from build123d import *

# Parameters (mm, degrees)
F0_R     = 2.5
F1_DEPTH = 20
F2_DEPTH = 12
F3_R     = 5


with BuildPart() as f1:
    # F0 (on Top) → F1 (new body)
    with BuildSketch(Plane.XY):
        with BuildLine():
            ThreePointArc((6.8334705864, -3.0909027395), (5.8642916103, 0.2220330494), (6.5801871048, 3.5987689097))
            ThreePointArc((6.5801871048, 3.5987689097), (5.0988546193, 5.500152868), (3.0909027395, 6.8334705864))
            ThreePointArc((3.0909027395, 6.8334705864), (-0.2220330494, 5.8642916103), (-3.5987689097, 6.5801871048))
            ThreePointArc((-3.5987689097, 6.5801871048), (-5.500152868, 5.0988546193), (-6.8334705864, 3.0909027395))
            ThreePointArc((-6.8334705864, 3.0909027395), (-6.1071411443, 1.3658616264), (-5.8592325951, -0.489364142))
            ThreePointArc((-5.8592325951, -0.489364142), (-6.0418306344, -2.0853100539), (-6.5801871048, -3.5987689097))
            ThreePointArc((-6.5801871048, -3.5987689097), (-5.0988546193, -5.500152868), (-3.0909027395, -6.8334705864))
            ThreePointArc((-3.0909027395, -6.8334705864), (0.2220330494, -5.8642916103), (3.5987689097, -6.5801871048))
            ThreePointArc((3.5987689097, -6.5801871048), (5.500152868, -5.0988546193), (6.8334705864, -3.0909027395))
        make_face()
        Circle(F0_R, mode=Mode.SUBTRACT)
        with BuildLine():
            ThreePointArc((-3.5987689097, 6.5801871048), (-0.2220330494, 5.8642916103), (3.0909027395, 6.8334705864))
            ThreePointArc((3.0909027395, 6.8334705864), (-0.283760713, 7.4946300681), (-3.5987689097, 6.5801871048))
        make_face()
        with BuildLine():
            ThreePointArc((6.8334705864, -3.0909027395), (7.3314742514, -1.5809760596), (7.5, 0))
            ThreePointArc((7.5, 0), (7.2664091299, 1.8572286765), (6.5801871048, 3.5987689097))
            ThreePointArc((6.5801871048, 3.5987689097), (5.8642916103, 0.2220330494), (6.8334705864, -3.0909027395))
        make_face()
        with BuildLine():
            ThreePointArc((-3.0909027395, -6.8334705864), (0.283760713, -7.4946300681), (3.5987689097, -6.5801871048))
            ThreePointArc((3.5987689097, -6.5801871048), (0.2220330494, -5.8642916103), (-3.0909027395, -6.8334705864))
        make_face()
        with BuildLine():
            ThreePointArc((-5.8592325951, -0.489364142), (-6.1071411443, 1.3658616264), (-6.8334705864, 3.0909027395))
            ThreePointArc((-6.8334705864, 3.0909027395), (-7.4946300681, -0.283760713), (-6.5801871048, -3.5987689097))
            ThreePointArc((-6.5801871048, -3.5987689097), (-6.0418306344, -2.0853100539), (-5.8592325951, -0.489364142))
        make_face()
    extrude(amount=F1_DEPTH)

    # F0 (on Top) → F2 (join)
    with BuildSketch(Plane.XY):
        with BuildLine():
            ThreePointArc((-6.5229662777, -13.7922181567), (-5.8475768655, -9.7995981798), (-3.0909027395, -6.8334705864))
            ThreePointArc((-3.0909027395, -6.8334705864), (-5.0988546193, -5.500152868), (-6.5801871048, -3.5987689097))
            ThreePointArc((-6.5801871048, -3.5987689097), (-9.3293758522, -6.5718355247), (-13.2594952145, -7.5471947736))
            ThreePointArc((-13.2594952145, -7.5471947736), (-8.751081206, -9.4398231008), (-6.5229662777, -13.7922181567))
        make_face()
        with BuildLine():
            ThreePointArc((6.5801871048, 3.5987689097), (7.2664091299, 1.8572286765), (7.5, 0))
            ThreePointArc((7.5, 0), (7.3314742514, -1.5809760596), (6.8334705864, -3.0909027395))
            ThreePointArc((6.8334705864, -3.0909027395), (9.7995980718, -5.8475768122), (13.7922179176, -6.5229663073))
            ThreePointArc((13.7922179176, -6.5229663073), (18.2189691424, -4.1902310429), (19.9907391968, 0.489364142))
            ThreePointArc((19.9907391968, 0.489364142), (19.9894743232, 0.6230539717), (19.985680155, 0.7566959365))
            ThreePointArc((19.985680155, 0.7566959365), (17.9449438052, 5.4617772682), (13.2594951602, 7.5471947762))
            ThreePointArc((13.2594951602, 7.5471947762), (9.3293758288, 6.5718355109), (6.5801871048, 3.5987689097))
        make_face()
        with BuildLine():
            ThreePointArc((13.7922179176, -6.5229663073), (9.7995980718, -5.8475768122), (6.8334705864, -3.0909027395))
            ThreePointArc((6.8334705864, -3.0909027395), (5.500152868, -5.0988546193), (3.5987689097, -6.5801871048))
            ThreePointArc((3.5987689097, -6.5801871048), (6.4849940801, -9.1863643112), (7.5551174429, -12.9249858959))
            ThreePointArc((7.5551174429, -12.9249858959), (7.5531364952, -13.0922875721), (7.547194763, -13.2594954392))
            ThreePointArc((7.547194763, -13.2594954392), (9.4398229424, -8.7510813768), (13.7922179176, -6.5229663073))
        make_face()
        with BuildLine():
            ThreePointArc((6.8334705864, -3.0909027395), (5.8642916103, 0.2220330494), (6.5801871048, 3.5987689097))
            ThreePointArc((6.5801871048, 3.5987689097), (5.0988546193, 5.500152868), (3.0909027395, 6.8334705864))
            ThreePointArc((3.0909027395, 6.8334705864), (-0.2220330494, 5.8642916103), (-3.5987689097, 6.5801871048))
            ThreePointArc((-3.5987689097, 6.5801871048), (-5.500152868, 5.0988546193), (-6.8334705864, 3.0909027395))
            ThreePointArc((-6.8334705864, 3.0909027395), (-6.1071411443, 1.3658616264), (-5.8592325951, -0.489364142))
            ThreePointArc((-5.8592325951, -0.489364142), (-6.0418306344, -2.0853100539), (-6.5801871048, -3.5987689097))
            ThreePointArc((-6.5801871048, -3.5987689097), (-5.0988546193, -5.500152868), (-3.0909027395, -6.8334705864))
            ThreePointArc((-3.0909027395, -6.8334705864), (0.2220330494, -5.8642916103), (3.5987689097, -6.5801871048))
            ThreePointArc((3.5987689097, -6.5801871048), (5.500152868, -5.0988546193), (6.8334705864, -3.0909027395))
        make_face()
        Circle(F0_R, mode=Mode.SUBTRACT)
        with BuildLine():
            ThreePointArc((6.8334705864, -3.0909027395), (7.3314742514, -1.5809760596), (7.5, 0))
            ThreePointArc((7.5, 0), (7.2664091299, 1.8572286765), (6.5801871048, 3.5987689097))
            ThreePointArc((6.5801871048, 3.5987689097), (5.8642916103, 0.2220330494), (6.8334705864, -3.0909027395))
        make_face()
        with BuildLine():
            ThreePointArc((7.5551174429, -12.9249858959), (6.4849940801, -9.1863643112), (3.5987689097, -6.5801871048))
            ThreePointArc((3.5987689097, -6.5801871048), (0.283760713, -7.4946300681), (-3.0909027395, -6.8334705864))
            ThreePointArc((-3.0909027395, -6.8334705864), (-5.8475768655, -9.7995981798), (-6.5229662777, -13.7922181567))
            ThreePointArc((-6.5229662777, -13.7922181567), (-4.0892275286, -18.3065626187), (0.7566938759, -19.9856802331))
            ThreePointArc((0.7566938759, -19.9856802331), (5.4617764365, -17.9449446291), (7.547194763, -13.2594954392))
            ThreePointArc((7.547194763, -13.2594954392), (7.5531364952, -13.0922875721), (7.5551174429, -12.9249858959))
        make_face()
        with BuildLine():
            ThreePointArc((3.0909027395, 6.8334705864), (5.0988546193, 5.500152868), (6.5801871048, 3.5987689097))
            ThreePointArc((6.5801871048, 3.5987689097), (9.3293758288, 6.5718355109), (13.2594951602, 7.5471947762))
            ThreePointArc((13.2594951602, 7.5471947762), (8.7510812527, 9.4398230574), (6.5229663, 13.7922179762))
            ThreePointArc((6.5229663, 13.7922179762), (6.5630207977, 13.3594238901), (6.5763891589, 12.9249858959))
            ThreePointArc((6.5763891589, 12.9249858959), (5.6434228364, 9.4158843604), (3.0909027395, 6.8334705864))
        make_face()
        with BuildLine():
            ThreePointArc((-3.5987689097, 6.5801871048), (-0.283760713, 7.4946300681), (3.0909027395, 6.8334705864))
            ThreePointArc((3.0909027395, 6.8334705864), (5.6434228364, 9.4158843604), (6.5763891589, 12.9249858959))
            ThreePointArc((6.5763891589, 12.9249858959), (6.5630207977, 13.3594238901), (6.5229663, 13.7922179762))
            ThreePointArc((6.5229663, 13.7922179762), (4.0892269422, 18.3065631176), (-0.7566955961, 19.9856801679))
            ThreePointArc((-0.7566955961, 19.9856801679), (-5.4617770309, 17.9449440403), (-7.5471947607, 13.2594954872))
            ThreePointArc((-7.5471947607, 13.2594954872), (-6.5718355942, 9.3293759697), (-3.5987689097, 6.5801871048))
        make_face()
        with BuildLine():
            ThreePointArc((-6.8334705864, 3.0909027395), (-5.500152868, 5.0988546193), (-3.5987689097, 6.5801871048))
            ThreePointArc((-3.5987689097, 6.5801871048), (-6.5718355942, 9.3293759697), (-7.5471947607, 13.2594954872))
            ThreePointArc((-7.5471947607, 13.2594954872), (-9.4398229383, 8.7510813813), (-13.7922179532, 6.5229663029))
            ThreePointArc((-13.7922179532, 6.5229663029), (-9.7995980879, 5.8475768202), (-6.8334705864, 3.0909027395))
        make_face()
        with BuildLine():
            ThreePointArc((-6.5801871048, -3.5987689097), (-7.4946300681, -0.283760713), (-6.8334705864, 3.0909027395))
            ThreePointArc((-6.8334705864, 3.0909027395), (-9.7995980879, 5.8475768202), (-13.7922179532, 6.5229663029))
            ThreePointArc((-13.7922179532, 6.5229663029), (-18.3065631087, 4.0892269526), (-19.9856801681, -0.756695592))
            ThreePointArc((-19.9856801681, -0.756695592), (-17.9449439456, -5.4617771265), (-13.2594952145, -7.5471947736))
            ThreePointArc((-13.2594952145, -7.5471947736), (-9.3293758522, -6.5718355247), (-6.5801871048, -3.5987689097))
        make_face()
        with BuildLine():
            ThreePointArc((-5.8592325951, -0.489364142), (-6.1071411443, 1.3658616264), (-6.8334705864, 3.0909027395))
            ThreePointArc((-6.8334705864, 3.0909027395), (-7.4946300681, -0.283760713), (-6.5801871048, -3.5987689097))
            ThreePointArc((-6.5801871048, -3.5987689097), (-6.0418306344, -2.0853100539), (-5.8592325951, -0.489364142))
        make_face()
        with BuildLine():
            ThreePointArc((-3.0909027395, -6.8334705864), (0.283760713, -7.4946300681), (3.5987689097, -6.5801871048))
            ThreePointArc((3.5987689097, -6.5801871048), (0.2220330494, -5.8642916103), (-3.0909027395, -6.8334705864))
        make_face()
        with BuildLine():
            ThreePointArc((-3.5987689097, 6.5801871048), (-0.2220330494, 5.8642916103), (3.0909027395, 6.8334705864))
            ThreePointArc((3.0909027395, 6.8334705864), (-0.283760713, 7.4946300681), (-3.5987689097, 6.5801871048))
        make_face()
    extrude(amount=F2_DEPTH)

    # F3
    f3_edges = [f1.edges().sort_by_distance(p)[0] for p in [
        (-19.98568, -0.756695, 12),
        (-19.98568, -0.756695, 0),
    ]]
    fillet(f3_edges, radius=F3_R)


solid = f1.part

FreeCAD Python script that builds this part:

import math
import FreeCAD as App
import Part
import Sketcher


def edges_at(feature, points):
    """Names of the edges that pass closest to the given points."""
    edges = feature.Shape.Edges
    near = lambda p: min(range(len(edges)), key=lambda i: edges[i].distToShape(Part.Vertex(*p))[0])
    return sorted({f"Edge{near(p) + 1}" for p in points})

doc = App.newDocument("Part")
body = doc.addObject("PartDesign::Body", "Body")

# Sketch on XY plane
sketch1 = doc.addObject("Sketcher::SketchObject", "Sketch")
body.addObject(sketch1)
sketch1.AttachmentSupport = (doc.XY_Plane, [""])
sketch1.MapMode = "FlatFace"
sketch1.addGeometry([
    Part.ArcOfCircle(Part.Circle(App.Vector(0, 0, 0), App.Vector(0, 0, 1), 7.5), math.radians(28.674682), math.radians(65.661897)),  # 0
    Part.ArcOfCircle(Part.Circle(App.Vector(0, 0, 0), App.Vector(0, 0, 1), 7.5), math.radians(65.661897), math.radians(118.674682)),  # 1
    Part.ArcOfCircle(Part.Circle(App.Vector(0, 0, 0), App.Vector(0, 0, 1), 7.5), math.radians(118.674682), math.radians(155.661897)),  # 2
    Part.ArcOfCircle(Part.Circle(App.Vector(0, 0, 0), App.Vector(0, 0, 1), 7.5), math.radians(155.661897), math.radians(208.674682)),  # 3
    Part.ArcOfCircle(Part.Circle(App.Vector(0, 0, 0), App.Vector(0, 0, 1), 7.5), math.radians(-151.325318), math.radians(-114.338103)),  # 4
    Part.ArcOfCircle(Part.Circle(App.Vector(0, 0, 0), App.Vector(0, 0, 1), 7.5), math.radians(-114.338103), math.radians(-61.325318)),  # 5
    Part.ArcOfCircle(Part.Circle(App.Vector(0, 0, 0), App.Vector(0, 0, 1), 7.5), math.radians(-61.325318), math.radians(-24.338103)),  # 6
    Part.ArcOfCircle(Part.Circle(App.Vector(0, 0, 0), App.Vector(0, 0, 1), 7.5), math.radians(-24.338103), math.radians(0)),  # 7
    Part.ArcOfCircle(Part.Circle(App.Vector(0, 0, 0), App.Vector(0, 0, 1), 7.5), math.radians(0), math.radians(28.674682)),  # 8
    Part.Circle(App.Vector(0, 0, 0), App.Vector(0, 0, 1), 2.5),  # 9
], False)
sketch1.addConstraint([
    Sketcher.Constraint("Tangent", 0, 2, 1, 1),
    Sketcher.Constraint("Tangent", 1, 2, 2, 1),
    Sketcher.Constraint("Tangent", 2, 2, 3, 1),
    Sketcher.Constraint("Tangent", 3, 2, 4, 1),
    Sketcher.Constraint("Tangent", 4, 2, 5, 1),
    Sketcher.Constraint("Tangent", 5, 2, 6, 1),
    Sketcher.Constraint("Tangent", 6, 2, 7, 1),
    Sketcher.Constraint("Tangent", 7, 2, 8, 1),
    Sketcher.Constraint("Tangent", 8, 2, 0, 1),
    Sketcher.Constraint("Coincident", 0, 3, -1, 1),
    Sketcher.Constraint("Coincident", 2, 3, -1, 1),
    Sketcher.Constraint("Coincident", 4, 3, -1, 1),
    Sketcher.Constraint("Coincident", 6, 3, -1, 1),
    Sketcher.Constraint("Coincident", 9, 3, -1, 1),
    Sketcher.Constraint("PointOnObject", 7, 2, -1),
    Sketcher.Constraint("Diameter", 9, 5.0),
    Sketcher.Constraint("Radius", 0, 7.5),
    Sketcher.Constraint("DistanceX", 2, 2, 1, 2, 3.234702),
    Sketcher.Constraint("DistanceY", 4, 2, 3, 2, 3.234702),
    Sketcher.Constraint("DistanceX", 5, 2, 6, 2, 3.234702),
    Sketcher.Constraint("DistanceY", 8, 2, 0, 2, 3.234702),
    Sketcher.Constraint("DistanceY", -1, 1, 0, 2, 6.833471),
    Sketcher.Constraint("DistanceX", 1, 2, -1, 1, 3.598769),
    Sketcher.Constraint("DistanceY", 3, 2, -1, 1, 3.598769),
    Sketcher.Constraint("DistanceX", -1, 1, 5, 2, 3.598769),
])
pad1 = doc.addObject("PartDesign::Pad", "Pad")
body.addObject(pad1)
pad1.Profile = sketch1
pad1.Length = 20

# Sketch on XY plane
sketch2 = doc.addObject("Sketcher::SketchObject", "Sketch001")
body.addObject(sketch2)
sketch2.AttachmentSupport = (doc.XY_Plane, [""])
sketch2.MapMode = "FlatFace"
sketch2.addGeometry([
    Part.ArcOfCircle(Part.Circle(App.Vector(-0.489364, 12.924986, 0), App.Vector(0, 0, 1), 7.065753), math.radians(92.168293), math.radians(177.286467)),  # 0
    Part.ArcOfCircle(Part.Circle(App.Vector(-14.667074, 13.596946, 0), App.Vector(0, 0, 1), 7.127872), math.radians(-82.949889), math.radians(-2.713531)),  # 1
    Part.ArcOfCircle(Part.Circle(App.Vector(-12.924986, -0.489364, 0), App.Vector(0, 0, 1), 7.065753), math.radians(97.050111), math.radians(182.168293)),  # 2
    Part.ArcOfCircle(Part.Circle(App.Vector(-12.924986, -0.489364, 0), App.Vector(0, 0, 1), 7.065753), math.radians(-177.831707), math.radians(-92.713531)),  # 3
    Part.ArcOfCircle(Part.Circle(App.Vector(-13.596946, -14.667074, 0), App.Vector(0, 0, 1), 7.127872), math.radians(7.05011), math.radians(87.286467)),  # 4
    Part.ArcOfCircle(Part.Circle(App.Vector(0.489364, -12.924986, 0), App.Vector(0, 0, 1), 7.065753), math.radians(-172.949887), math.radians(-87.831721)),  # 5
    Part.ArcOfCircle(Part.Circle(App.Vector(0.489364, -12.924986, 0), App.Vector(0, 0, 1), 7.065753), math.radians(-87.831721), math.radians(-2.713533)),  # 6
    Part.ArcOfCircle(Part.Circle(App.Vector(14.667074, -13.596946, 0), App.Vector(0, 0, 1), 7.127872), math.radians(97.050112), math.radians(177.286469)),  # 7
    Part.ArcOfCircle(Part.Circle(App.Vector(12.924986, 0.489364, 0), App.Vector(0, 0, 1), 7.065753), math.radians(-82.949889), math.radians(0)),  # 8
    Part.ArcOfCircle(Part.Circle(App.Vector(12.924986, 0.489364, 0), App.Vector(0, 0, 1), 7.065753), math.radians(0), math.radians(2.168295)),  # 9
    Part.ArcOfCircle(Part.Circle(App.Vector(12.924986, 0.489364, 0), App.Vector(0, 0, 1), 7.065753), math.radians(2.168295), math.radians(87.28647)),  # 10
    Part.ArcOfCircle(Part.Circle(App.Vector(13.596946, 14.667074, 0), App.Vector(0, 0, 1), 7.127872), math.radians(-172.949889), math.radians(-92.713533)),  # 11
    Part.ArcOfCircle(Part.Circle(App.Vector(-0.489364, 12.924986, 0), App.Vector(0, 0, 1), 7.065753), math.radians(7.050111), math.radians(92.168293)),  # 12
    Part.Circle(App.Vector(0, 0, 0), App.Vector(0, 0, 1), 2.5),  # 13
], False)
sketch2.addConstraint([
    Sketcher.Constraint("Tangent", 0, 2, 1, 2),
    Sketcher.Constraint("Tangent", 1, 1, 2, 1),
    Sketcher.Constraint("Tangent", 2, 2, 3, 1),
    Sketcher.Constraint("Tangent", 3, 2, 4, 2),
    Sketcher.Constraint("Tangent", 4, 1, 5, 1),
    Sketcher.Constraint("Tangent", 5, 2, 6, 1),
    Sketcher.Constraint("Tangent", 6, 2, 7, 2),
    Sketcher.Constraint("Tangent", 7, 1, 8, 1),
    Sketcher.Constraint("Tangent", 8, 2, 9, 1),
    Sketcher.Constraint("Tangent", 9, 2, 10, 1),
    Sketcher.Constraint("Tangent", 10, 2, 11, 2),
    Sketcher.Constraint("Tangent", 11, 1, 12, 1),
    Sketcher.Constraint("Tangent", 12, 2, 0, 1),
    Sketcher.Constraint("Coincident", 13, 3, -1, 1),
    Sketcher.Constraint("Coincident", 10, 3, 8, 3),
    Sketcher.Constraint("Equal", 0, 2),
    Sketcher.Constraint("Equal", 2, 3),
    Sketcher.Constraint("Equal", 1, 4),
    Sketcher.Constraint("Equal", 3, 5),
    Sketcher.Constraint("Equal", 5, 6),
    Sketcher.Constraint("Equal", 4, 7),
    Sketcher.Constraint("Equal", 6, 8),
    Sketcher.Constraint("Equal", 7, 11),
    Sketcher.Constraint("Equal", 10, 12),
    Sketcher.Constraint("Symmetric", 0, 3, 5, 3, -1, 1),
    Sketcher.Constraint("Symmetric", 2, 3, 8, 3, -1, 1),
    Sketcher.Constraint("Horizontal", 10, 3, 8, 2),
    Sketcher.Constraint("Diameter", 13, 5.0),
    Sketcher.Constraint("Radius", 1, 7.127872),
    Sketcher.Constraint("Radius", 0, 7.065753),
    Sketcher.Constraint("DistanceY", 3, 2, 2, 2, 6.790499),
    Sketcher.Constraint("DistanceX", 5, 2, 6, 2, 6.790501),
    Sketcher.Constraint("DistanceY", 9, 2, 10, 2, 6.790499),
    Sketcher.Constraint("DistanceX", 0, 2, 12, 2, 6.790499),
    Sketcher.Constraint("DistanceX", 2, 2, -1, 1, 19.98568),
    Sketcher.Constraint("DistanceY", 4, 1, -1, 1, 13.792218),
    Sketcher.Constraint("DistanceY", 5, 2, -1, 1, 19.98568),
    Sketcher.Constraint("DistanceY", 0, 3, 1, 3, 0.67196),
])
pad2 = doc.addObject("PartDesign::Pad", "Pad001")
body.addObject(pad2)
pad2.Profile = sketch2
pad2.Length = 12
doc.recompute()

fillet = doc.addObject("PartDesign::Fillet", "Fillet")
body.addObject(fillet)
fillet.Base = (pad2, edges_at(pad2, [(-18.307, 4.089, 12), (-18.307, 4.089, 0)]))
fillet.Radius = 5

doc.recompute()
